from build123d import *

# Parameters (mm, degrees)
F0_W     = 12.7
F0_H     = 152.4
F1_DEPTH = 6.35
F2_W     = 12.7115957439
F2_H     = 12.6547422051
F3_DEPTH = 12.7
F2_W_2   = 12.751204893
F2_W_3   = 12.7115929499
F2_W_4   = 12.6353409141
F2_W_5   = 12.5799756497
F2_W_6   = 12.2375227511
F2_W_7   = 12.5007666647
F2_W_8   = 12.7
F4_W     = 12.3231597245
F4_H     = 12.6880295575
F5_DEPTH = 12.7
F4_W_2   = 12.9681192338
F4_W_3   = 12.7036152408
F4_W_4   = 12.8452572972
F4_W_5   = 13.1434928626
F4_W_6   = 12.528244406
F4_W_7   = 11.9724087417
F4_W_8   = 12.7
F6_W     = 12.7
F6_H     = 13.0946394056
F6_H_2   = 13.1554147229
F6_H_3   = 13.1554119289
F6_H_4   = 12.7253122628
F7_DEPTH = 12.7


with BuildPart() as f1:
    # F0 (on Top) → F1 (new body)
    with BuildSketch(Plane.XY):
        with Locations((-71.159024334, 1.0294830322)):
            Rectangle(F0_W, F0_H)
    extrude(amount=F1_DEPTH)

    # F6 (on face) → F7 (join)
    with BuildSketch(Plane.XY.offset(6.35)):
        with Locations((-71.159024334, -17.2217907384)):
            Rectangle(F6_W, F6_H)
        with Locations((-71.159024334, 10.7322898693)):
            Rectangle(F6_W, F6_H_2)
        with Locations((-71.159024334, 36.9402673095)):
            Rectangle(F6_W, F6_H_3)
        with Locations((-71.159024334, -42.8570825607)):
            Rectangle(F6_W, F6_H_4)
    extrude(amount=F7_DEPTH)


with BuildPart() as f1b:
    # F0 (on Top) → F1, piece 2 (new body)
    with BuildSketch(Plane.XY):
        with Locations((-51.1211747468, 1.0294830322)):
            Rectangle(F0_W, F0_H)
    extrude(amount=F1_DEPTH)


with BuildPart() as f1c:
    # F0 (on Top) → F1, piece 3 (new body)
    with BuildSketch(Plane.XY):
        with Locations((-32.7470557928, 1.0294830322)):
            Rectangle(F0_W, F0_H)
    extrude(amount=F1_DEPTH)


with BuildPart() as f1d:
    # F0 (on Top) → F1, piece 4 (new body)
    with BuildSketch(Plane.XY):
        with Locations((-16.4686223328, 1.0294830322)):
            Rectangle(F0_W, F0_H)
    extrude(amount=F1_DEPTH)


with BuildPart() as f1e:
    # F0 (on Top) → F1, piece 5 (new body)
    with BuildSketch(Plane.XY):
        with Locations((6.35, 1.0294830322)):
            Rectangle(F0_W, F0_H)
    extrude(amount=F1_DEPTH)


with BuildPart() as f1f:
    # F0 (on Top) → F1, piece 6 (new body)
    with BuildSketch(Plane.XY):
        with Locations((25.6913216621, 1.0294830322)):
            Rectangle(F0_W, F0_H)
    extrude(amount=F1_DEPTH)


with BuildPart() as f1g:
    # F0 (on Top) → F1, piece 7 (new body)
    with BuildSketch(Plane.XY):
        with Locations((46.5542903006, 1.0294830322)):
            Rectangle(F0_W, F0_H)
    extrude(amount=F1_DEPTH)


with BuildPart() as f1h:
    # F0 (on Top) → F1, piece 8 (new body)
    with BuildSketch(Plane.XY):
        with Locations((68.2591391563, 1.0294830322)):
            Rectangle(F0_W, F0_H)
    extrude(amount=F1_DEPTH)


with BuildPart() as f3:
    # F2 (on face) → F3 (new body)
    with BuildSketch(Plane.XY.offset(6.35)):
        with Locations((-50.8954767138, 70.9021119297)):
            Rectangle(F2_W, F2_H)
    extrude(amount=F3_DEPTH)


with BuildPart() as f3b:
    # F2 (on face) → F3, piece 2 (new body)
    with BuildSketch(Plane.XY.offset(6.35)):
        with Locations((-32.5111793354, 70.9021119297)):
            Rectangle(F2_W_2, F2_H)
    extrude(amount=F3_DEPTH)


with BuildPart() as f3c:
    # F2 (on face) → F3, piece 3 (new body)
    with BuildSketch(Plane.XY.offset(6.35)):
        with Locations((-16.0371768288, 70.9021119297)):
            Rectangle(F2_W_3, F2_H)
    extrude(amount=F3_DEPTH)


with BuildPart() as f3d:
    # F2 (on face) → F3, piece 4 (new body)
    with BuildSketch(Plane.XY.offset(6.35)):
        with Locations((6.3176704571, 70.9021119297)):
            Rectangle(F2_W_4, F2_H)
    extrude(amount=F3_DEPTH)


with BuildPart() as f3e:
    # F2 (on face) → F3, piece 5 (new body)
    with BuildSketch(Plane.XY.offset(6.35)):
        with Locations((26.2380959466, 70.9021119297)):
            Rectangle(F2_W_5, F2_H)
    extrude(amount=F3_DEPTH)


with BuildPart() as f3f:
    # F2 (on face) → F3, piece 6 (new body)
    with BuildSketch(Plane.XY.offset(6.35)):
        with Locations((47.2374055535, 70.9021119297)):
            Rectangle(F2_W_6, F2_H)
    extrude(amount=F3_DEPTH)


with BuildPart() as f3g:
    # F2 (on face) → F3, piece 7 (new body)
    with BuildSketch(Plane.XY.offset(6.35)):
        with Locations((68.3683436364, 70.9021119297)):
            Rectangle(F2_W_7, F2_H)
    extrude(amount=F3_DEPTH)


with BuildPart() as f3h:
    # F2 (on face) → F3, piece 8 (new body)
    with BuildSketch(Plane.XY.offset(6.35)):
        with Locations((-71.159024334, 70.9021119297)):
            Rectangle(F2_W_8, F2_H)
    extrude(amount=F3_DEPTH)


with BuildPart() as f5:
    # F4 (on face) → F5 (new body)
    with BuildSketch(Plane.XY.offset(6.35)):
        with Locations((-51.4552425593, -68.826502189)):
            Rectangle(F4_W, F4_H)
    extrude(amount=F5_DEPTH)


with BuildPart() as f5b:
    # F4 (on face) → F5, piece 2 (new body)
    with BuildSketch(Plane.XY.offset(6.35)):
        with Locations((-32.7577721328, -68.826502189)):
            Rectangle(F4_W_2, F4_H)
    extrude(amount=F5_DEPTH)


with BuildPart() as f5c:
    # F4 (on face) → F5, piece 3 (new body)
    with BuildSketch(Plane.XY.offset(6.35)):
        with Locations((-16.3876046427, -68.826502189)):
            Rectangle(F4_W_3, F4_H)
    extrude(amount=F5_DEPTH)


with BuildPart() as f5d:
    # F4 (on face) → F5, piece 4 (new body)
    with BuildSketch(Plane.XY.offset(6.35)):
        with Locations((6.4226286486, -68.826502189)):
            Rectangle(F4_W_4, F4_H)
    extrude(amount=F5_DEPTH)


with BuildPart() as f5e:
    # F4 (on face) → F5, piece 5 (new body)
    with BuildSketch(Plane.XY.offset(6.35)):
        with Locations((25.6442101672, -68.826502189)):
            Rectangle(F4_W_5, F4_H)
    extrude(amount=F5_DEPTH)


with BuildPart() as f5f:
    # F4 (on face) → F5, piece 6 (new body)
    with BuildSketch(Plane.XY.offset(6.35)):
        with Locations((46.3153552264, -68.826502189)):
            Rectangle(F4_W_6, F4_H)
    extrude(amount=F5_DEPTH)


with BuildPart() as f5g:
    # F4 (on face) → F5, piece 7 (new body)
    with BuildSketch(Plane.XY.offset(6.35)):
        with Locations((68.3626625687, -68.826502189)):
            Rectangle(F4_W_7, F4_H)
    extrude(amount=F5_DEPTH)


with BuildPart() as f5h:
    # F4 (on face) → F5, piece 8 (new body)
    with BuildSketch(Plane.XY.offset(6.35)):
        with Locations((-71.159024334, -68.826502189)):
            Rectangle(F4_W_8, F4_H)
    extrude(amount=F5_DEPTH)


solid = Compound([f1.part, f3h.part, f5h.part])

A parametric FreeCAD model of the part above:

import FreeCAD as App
import Part
import Sketcher
Q = App.Units.Quantity


def add_polygon(sketch, points):
    """Adds a closed chain of lines whose ends are joined by coincident constraints."""
    first, n = sketch.GeometryCount, len(points)
    for a, b in zip(points, points[1:] + points[:1]):
        sketch.addGeometry(Part.LineSegment(App.Vector(*a, 0), App.Vector(*b, 0)), False)
    for i in range(n):
        sketch.addConstraint(Sketcher.Constraint("Coincident", first + i, 2, first + (i + 1) % n, 1))

doc = App.newDocument("Part")
body = doc.addObject("PartDesign::Body", "Body")

# Sketch on XY plane
sketch1 = doc.addObject("Sketcher::SketchObject", "Sketch")
body.addObject(sketch1)
sketch1.AttachmentSupport = (doc.XY_Plane, [""])
sketch1.MapMode = "FlatFace"
add_polygon(sketch1, [(-77.509024, 77.229483), (-77.509024, -75.170517), (-64.809024, -75.170517), (-64.809024, 77.229483)])  # lines 0-3
sketch1.addConstraint([
    Sketcher.Constraint("Vertical", 0),
    Sketcher.Constraint("Horizontal", 1),
    Sketcher.Constraint("Vertical", 2),
    Sketcher.Constraint("Horizontal", 3),
    Sketcher.Constraint("DistanceY", 0, 2, 0, 1, Q("6 in")),
    Sketcher.Constraint("DistanceX", 1, 1, 1, 2, Q("0.5 in")),
    Sketcher.Constraint("DistanceX", 0, 2, -1, 1, Q("77.509024 mm")),
    Sketcher.Constraint("DistanceY", 0, 2, -1, 1, Q("75.170517 mm")),
])
pad1 = doc.addObject("PartDesign::Pad", "Pad")
body.addObject(pad1)
pad1.Profile = sketch1
pad1.Length = Q("0.25 in")

# Sketch on XY plane
sketch2 = doc.addObject("Sketcher::SketchObject", "Sketch001")
body.addObject(sketch2)
sketch2.AttachmentSupport = (doc.XY_Plane, [""])
sketch2.MapMode = "FlatFace"
sketch2.AttachmentOffset = App.Placement(App.Vector(0, 0, 0.25 * 25.4), App.Rotation())
add_polygon(sketch2, [(-77.509024, -10.674471), (-77.509024, -23.76911), (-64.809024, -23.76911), (-64.809024, -10.674471)])  # lines 0-3
add_polygon(sketch2, [(-77.509024, 17.309997), (-77.509024, 4.154583), (-64.809024, 4.154583), (-64.809024, 17.309997)])  # lines 4-7
add_polygon(sketch2, [(-77.509024, 43.517973), (-77.509024, 30.362561), (-64.809024, 30.362561), (-64.809024, 43.517973)])  # lines 8-11
add_polygon(sketch2, [(-77.509024, -36.494426), (-77.509024, -49.219739), (-64.809024, -49.219739), (-64.809024, -36.494426)])  # lines 12-15
sketch2.addConstraint([
    Sketcher.Constraint("Vertical", 0),
    Sketcher.Constraint("Horizontal", 1),
    Sketcher.Constraint("Vertical", 2),
    Sketcher.Constraint("Horizontal", 3),
    Sketcher.Constraint("Vertical", 4),
    Sketcher.Constraint("Horizontal", 5),
    Sketcher.Constraint("Vertical", 6),
    Sketcher.Constraint("Horizontal", 7),
    Sketcher.Constraint("Vertical", 8),
    Sketcher.Constraint("Horizontal", 9),
    Sketcher.Constraint("Vertical", 10),
    Sketcher.Constraint("Horizontal", 11),
    Sketcher.Constraint("Vertical", 12),
    Sketcher.Constraint("Horizontal", 13),
    Sketcher.Constraint("Vertical", 14),
    Sketcher.Constraint("Horizontal", 15),
    Sketcher.Constraint("Vertical", 3, 2, 4, 2),
    Sketcher.Constraint("Vertical", 2, 2, 5, 2),
    Sketcher.Constraint("Vertical", 7, 2, 8, 2),
    Sketcher.Constraint("Vertical", 6, 2, 9, 2),
    Sketcher.Constraint("Vertical", 11, 2, 12, 2),
    Sketcher.Constraint("Vertical", 10, 2, 13, 2),
    Sketcher.Constraint("DistanceX", 1, 1, 1, 2, Q("0.5 in")),
    Sketcher.Constraint("DistanceY", 0, 2, 0, 1, Q("13.094639 mm")),
    Sketcher.Constraint("DistanceY", 8, 2, 8, 1, Q("13.155412 mm")),
    Sketcher.Constraint("DistanceY", 4, 2, 4, 1, Q("13.155415 mm")),
    Sketcher.Constraint("DistanceY", 12, 2, 12, 1, Q("12.725312 mm")),
    Sketcher.Constraint("DistanceY", 0, 2, -1, 1, Q("23.76911 mm")),
    Sketcher.Constraint("DistanceY", -1, 1, 8, 2, Q("30.362561 mm")),
    Sketcher.Constraint("DistanceY", 12, 2, -1, 1, Q("49.219739 mm")),
    Sketcher.Constraint("DistanceY", 2, 2, 6, 2, Q("27.984468 mm")),
    Sketcher.Constraint("DistanceX", 0, 2, -1, 1, Q("77.509024 mm")),
])
pad2 = doc.addObject("PartDesign::Pad", "Pad001")
body.addObject(pad2)
pad2.Profile = sketch2
pad2.Length = Q("0.5 in")
body2 = doc.addObject("PartDesign::Body", "Body001")

# Sketch on XY plane
sketch3 = doc.addObject("Sketcher::SketchObject", "Sketch002")
body2.addObject(sketch3)
sketch3.AttachmentSupport = (doc.getObject("XY_Plane001"), [""])
sketch3.MapMode = "FlatFace"
add_polygon(sketch3, [(-57.471175, 77.229483), (-57.471175, -75.170517), (-44.771175, -75.170517), (-44.771175, 77.229483)])  # lines 0-3
sketch3.addConstraint([
    Sketcher.Constraint("Vertical", 0),
    Sketcher.Constraint("Horizontal", 1),
    Sketcher.Constraint("Vertical", 2),
    Sketcher.Constraint("Horizontal", 3),
    Sketcher.Constraint("DistanceY", 0, 2, 0, 1, Q("6 in")),
    Sketcher.Constraint("DistanceX", 1, 1, 1, 2, Q("0.5 in")),
    Sketcher.Constraint("DistanceX", 0, 2, -1, 1, Q("57.471175 mm")),
    Sketcher.Constraint("DistanceY", 0, 2, -1, 1, Q("75.170517 mm")),
])
pad3 = doc.addObject("PartDesign::Pad", "Pad002")
body2.addObject(pad3)
pad3.Profile = sketch3
pad3.Length = Q("0.25 in")
body3 = doc.addObject("PartDesign::Body", "Body002")

# Sketch on XY plane
sketch4 = doc.addObject("Sketcher::SketchObject", "Sketch003")
body3.addObject(sketch4)
sketch4.AttachmentSupport = (doc.getObject("XY_Plane002"), [""])
sketch4.MapMode = "FlatFace"
add_polygon(sketch4, [(-39.097056, 77.229483), (-39.097056, -75.170517), (-26.397056, -75.170517), (-26.397056, 77.229483)])  # lines 0-3
sketch4.addConstraint([
    Sketcher.Constraint("Vertical", 0),
    Sketcher.Constraint("Horizontal", 1),
    Sketcher.Constraint("Vertical", 2),
    Sketcher.Constraint("Horizontal", 3),
    Sketcher.Constraint("DistanceY", 0, 2, 0, 1, Q("6 in")),
    Sketcher.Constraint("DistanceX", 1, 1, 1, 2, Q("0.5 in")),
    Sketcher.Constraint("DistanceX", 0, 2, -1, 1, Q("39.097056 mm")),
    Sketcher.Constraint("DistanceY", 0, 2, -1, 1, Q("75.170517 mm")),
])
pad4 = doc.addObject("PartDesign::Pad", "Pad003")
body3.addObject(pad4)
pad4.Profile = sketch4
pad4.Length = Q("0.25 in")
body4 = doc.addObject("PartDesign::Body", "Body003")

# Sketch on XY plane
sketch5 = doc.addObject("Sketcher::SketchObject", "Sketch004")
body4.addObject(sketch5)
sketch5.AttachmentSupport = (doc.getObject("XY_Plane003"), [""])
sketch5.MapMode = "FlatFace"
add_polygon(sketch5, [(-22.818622, 77.229483), (-22.818622, -75.170517), (-10.118622, -75.170517), (-10.118622, 77.229483)])  # lines 0-3
sketch5.addConstraint([
    Sketcher.Constraint("Vertical", 0),
    Sketcher.Constraint("Horizontal", 1),
    Sketcher.Constraint("Vertical", 2),
    Sketcher.Constraint("Horizontal", 3),
    Sketcher.Constraint("DistanceY", 0, 2, 0, 1, Q("6 in")),
    Sketcher.Constraint("DistanceX", 1, 1, 1, 2, Q("0.5 in")),
    Sketcher.Constraint("DistanceX", 0, 2, -1, 1, Q("22.818622 mm")),
    Sketcher.Constraint("DistanceY", 0, 2, -1, 1, Q("75.170517 mm")),
])
pad5 = doc.addObject("PartDesign::Pad", "Pad004")
body4.addObject(pad5)
pad5.Profile = sketch5
pad5.Length = Q("0.25 in")
body5 = doc.addObject("PartDesign::Body", "Body004")

# Sketch on XY plane
sketch6 = doc.addObject("Sketcher::SketchObject", "Sketch005")
body5.addObject(sketch6)
sketch6.AttachmentSupport = (doc.getObject("XY_Plane004"), [""])
sketch6.MapMode = "FlatFace"
add_polygon(sketch6, [(0, 77.229483), (0, -75.170517), (12.7, -75.170517), (12.7, 77.229483)])  # lines 0-3
sketch6.addConstraint([
    Sketcher.Constraint("Vertical", 0),
    Sketcher.Constraint("Horizontal", 1),
    Sketcher.Constraint("Vertical", 2),
    Sketcher.Constraint("Horizontal", 3),
    Sketcher.Constraint("PointOnObject", 0, 2, -2),
    Sketcher.Constraint("DistanceY", 0, 2, 0, 1, Q("6 in")),
    Sketcher.Constraint("DistanceX", 1, 1, 1, 2, Q("0.5 in")),
    Sketcher.Constraint("DistanceY", 0, 2, -1, 1, Q("75.170517 mm")),
])
pad6 = doc.addObject("PartDesign::Pad", "Pad005")
body5.addObject(pad6)
pad6.Profile = sketch6
pad6.Length = Q("0.25 in")
body6 = doc.addObject("PartDesign::Body", "Body005")

# Sketch on XY plane
sketch7 = doc.addObject("Sketcher::SketchObject", "Sketch006")
body6.addObject(sketch7)
sketch7.AttachmentSupport = (doc.getObject("XY_Plane005"), [""])
sketch7.MapMode = "FlatFace"
add_polygon(sketch7, [(19.341322, 77.229483), (19.341322, -75.170517), (32.041322, -75.170517), (32.041322, 77.229483)])  # lines 0-3
sketch7.addConstraint([
    Sketcher.Constraint("Vertical", 0),
    Sketcher.Constraint("Horizontal", 1),
    Sketcher.Constraint("Vertical", 2),
    Sketcher.Constraint("Horizontal", 3),
    Sketcher.Constraint("DistanceY", 0, 2, 0, 1, Q("6 in")),
    Sketcher.Constraint("DistanceX", 1, 1, 1, 2, Q("0.5 in")),
    Sketcher.Constraint("DistanceX", -1, 1, 0, 2, Q("19.341322 mm")),
    Sketcher.Constraint("DistanceY", 0, 2, -1, 1, Q("75.170517 mm")),
])
pad7 = doc.addObject("PartDesign::Pad", "Pad006")
body6.addObject(pad7)
pad7.Profile = sketch7
pad7.Length = Q("0.25 in")
body7 = doc.addObject("PartDesign::Body", "Body006")

# Sketch on XY plane
sketch8 = doc.addObject("Sketcher::SketchObject", "Sketch007")
body7.addObject(sketch8)
sketch8.AttachmentSupport = (doc.getObject("XY_Plane006"), [""])
sketch8.MapMode = "FlatFace"
add_polygon(sketch8, [(40.20429, 77.229483), (40.20429, -75.170517), (52.90429, -75.170517), (52.90429, 77.229483)])  # lines 0-3
sketch8.addConstraint([
    Sketcher.Constraint("Vertical", 0),
    Sketcher.Constraint("Horizontal", 1),
    Sketcher.Constraint("Vertical", 2),
    Sketcher.Constraint("Horizontal", 3),
    Sketcher.Constraint("DistanceY", 0, 2, 0, 1, Q("6 in")),
    Sketcher.Constraint("DistanceX", 1, 1, 1, 2, Q("0.5 in")),
    Sketcher.Constraint("DistanceX", -1, 1, 0, 2, Q("40.20429 mm")),
    Sketcher.Constraint("DistanceY", 0, 2, -1, 1, Q("75.170517 mm")),
])
pad8 = doc.addObject("PartDesign::Pad", "Pad007")
body7.addObject(pad8)
pad8.Profile = sketch8
pad8.Length = Q("0.25 in")
body8 = doc.addObject("PartDesign::Body", "Body007")

# Sketch on XY plane
sketch9 = doc.addObject("Sketcher::SketchObject", "Sketch008")
body8.addObject(sketch9)
sketch9.AttachmentSupport = (doc.getObject("XY_Plane007"), [""])
sketch9.MapMode = "FlatFace"
add_polygon(sketch9, [(61.909139, 77.229483), (61.909139, -75.170517), (74.609139, -75.170517), (74.609139, 77.229483)])  # lines 0-3
sketch9.addConstraint([
    Sketcher.Constraint("Vertical", 0),
    Sketcher.Constraint("Horizontal", 1),
    Sketcher.Constraint("Vertical", 2),
    Sketcher.Constraint("Horizontal", 3),
    Sketcher.Constraint("DistanceY", 0, 2, 0, 1, Q("6 in")),
    Sketcher.Constraint("DistanceX", 1, 1, 1, 2, Q("0.5 in")),
    Sketcher.Constraint("DistanceX", -1, 1, 0, 2, Q("61.909139 mm")),
    Sketcher.Constraint("DistanceY", 0, 2, -1, 1, Q("75.170517 mm")),
])
pad9 = doc.addObject("PartDesign::Pad", "Pad008")
body8.addObject(pad9)
pad9.Profile = sketch9
pad9.Length = Q("0.25 in")
body9 = doc.addObject("PartDesign::Body", "Body008")

# Sketch on XY plane
sketch10 = doc.addObject("Sketcher::SketchObject", "Sketch009")
body9.addObject(sketch10)
sketch10.AttachmentSupport = (doc.getObject("XY_Plane008"), [""])
sketch10.MapMode = "FlatFace"
sketch10.AttachmentOffset = App.Placement(App.Vector(0, 0, 0.25 * 25.4), App.Rotation())
add_polygon(sketch10, [(-57.251275, 77.229483), (-57.251275, 64.574741), (-44.539679, 64.574741), (-44.539679, 77.229483)])  # lines 0-3
sketch10.addConstraint([
    Sketcher.Constraint("Vertical", 0),
    Sketcher.Constraint("Horizontal", 1),
    Sketcher.Constraint("Vertical", 2),
    Sketcher.Constraint("Horizontal", 3),
    Sketcher.Constraint("DistanceX", 1, 1, 1, 2, Q("12.711596 mm")),
    Sketcher.Constraint("DistanceY", 0, 2, 0, 1, Q("12.654742 mm")),
    Sketcher.Constraint("DistanceY", -1, 1, 0, 2, Q("64.574741 mm")),
    Sketcher.Constraint("DistanceX", 1, 2, -1, 1, Q("44.539679 mm")),
])
pad10 = doc.addObject("PartDesign::Pad", "Pad009")
body9.addObject(pad10)
pad10.Profile = sketch10
pad10.Length = Q("0.5 in")
body10 = doc.addObject("PartDesign::Body", "Body009")

# Sketch on XY plane
sketch11 = doc.addObject("Sketcher::SketchObject", "Sketch010")
body10.addObject(sketch11)
sketch11.AttachmentSupport = (doc.getObject("XY_Plane009"), [""])
sketch11.MapMode = "FlatFace"
sketch11.AttachmentOffset = App.Placement(App.Vector(0, 0, 0.25 * 25.4), App.Rotation())
add_polygon(sketch11, [(-38.886782, 77.229483), (-38.886782, 64.574741), (-26.135577, 64.574741), (-26.135577, 77.229483)])  # lines 0-3
sketch11.addConstraint([
    Sketcher.Constraint("Vertical", 0),
    Sketcher.Constraint("Horizontal", 1),
    Sketcher.Constraint("Vertical", 2),
    Sketcher.Constraint("Horizontal", 3),
    Sketcher.Constraint("DistanceX", 1, 1, 1, 2, Q("12.751205 mm")),
    Sketcher.Constraint("DistanceY", 0, 2, 0, 1, Q("12.654742 mm")),
    Sketcher.Constraint("DistanceX", 0, 2, -1, 1, Q("38.886782 mm")),
    Sketcher.Constraint("DistanceY", -1, 1, 0, 2, Q("64.574741 mm")),
])
pad11 = doc.addObject("PartDesign::Pad", "Pad010")
body10.addObject(pad11)
pad11.Profile = sketch11
pad11.Length = Q("0.5 in")
body11 = doc.addObject("PartDesign::Body", "Body010")

# Sketch on XY plane
sketch12 = doc.addObject("Sketcher::SketchObject", "Sketch011")
body11.addObject(sketch12)
sketch12.AttachmentSupport = (doc.getObject("XY_Plane010"), [""])
sketch12.MapMode = "FlatFace"
sketch12.AttachmentOffset = App.Placement(App.Vector(0, 0, 0.25 * 25.4), App.Rotation())
add_polygon(sketch12, [(-22.392973, 77.229483), (-22.392973, 64.574741), (-9.68138, 64.574741), (-9.68138, 77.229483)])  # lines 0-3
sketch12.addConstraint([
    Sketcher.Constraint("Vertical", 0),
    Sketcher.Constraint("Horizontal", 1),
    Sketcher.Constraint("Vertical", 2),
    Sketcher.Constraint("Horizontal", 3),
    Sketcher.Constraint("DistanceX", 1, 1, 1, 2, Q("12.711593 mm")),
    Sketcher.Constraint("DistanceY", 0, 2, 0, 1, Q("12.654742 mm")),
    Sketcher.Constraint("DistanceY", -1, 1, 0, 2, Q("64.574741 mm")),
    Sketcher.Constraint("DistanceX", 1, 2, -1, 1, Q("9.68138 mm")),
])
pad12 = doc.addObject("PartDesign::Pad", "Pad011")
body11.addObject(pad12)
pad12.Profile = sketch12
pad12.Length = Q("0.5 in")
body12 = doc.addObject("PartDesign::Body", "Body011")

# Sketch on XY plane
sketch13 = doc.addObject("Sketcher::SketchObject", "Sketch012")
body12.addObject(sketch13)
sketch13.AttachmentSupport = (doc.getObject("XY_Plane011"), [""])
sketch13.MapMode = "FlatFace"
sketch13.AttachmentOffset = App.Placement(App.Vector(0, 0, 0.25 * 25.4), App.Rotation())
add_polygon(sketch13, [(0, 77.229483), (0, 64.574741), (12.635341, 64.574741), (12.635341, 77.229483)])  # lines 0-3
sketch13.addConstraint([
    Sketcher.Constraint("Vertical", 0),
    Sketcher.Constraint("Horizontal", 1),
    Sketcher.Constraint("Vertical", 2),
    Sketcher.Constraint("Horizontal", 3),
    Sketcher.Constraint("PointOnObject", 0, 2, -2),
    Sketcher.Constraint("DistanceX", 1, 1, 1, 2, Q("12.635341 mm")),
    Sketcher.Constraint("DistanceY", 0, 2, 0, 1, Q("12.654742 mm")),
    Sketcher.Constraint("DistanceY", -1, 1, 0, 2, Q("64.574741 mm")),
])
pad13 = doc.addObject("PartDesign::Pad", "Pad012")
body12.addObject(pad13)
pad13.Profile = sketch13
pad13.Length = Q("0.5 in")
body13 = doc.addObject("PartDesign::Body", "Body012")

# Sketch on XY plane
sketch14 = doc.addObject("Sketcher::SketchObject", "Sketch013")
body13.addObject(sketch14)
sketch14.AttachmentSupport = (doc.getObject("XY_Plane012"), [""])
sketch14.MapMode = "FlatFace"
sketch14.AttachmentOffset = App.Placement(App.Vector(0, 0, 0.25 * 25.4), App.Rotation())
add_polygon(sketch14, [(19.948108, 77.229483), (19.948108, 64.574741), (32.528084, 64.574741), (32.528084, 77.229483)])  # lines 0-3
sketch14.addConstraint([
    Sketcher.Constraint("Vertical", 0),
    Sketcher.Constraint("Horizontal", 1),
    Sketcher.Constraint("Vertical", 2),
    Sketcher.Constraint("Horizontal", 3),
    Sketcher.Constraint("DistanceX", 1, 1, 1, 2, Q("12.579976 mm")),
    Sketcher.Constraint("DistanceY", 0, 2, 0, 1, Q("12.654742 mm")),
    Sketcher.Constraint("DistanceX", -1, 1, 0, 2, Q("19.948108 mm")),
    Sketcher.Constraint("DistanceY", -1, 1, 0, 2, Q("64.574741 mm")),
])
pad14 = doc.addObject("PartDesign::Pad", "Pad013")
body13.addObject(pad14)
pad14.Profile = sketch14
pad14.Length = Q("0.5 in")
body14 = doc.addObject("PartDesign::Body", "Body013")

# Sketch on XY plane
sketch15 = doc.addObject("Sketcher::SketchObject", "Sketch014")
body14.addObject(sketch15)
sketch15.AttachmentSupport = (doc.getObject("XY_Plane013"), [""])
sketch15.MapMode = "FlatFace"
sketch15.AttachmentOffset = App.Placement(App.Vector(0, 0, 0.25 * 25.4), App.Rotation())
add_polygon(sketch15, [(41.118644, 77.229483), (41.118644, 64.574741), (53.356167, 64.574741), (53.356167, 77.229483)])  # lines 0-3
sketch15.addConstraint([
    Sketcher.Constraint("Vertical", 0),
    Sketcher.Constraint("Horizontal", 1),
    Sketcher.Constraint("Vertical", 2),
    Sketcher.Constraint("Horizontal", 3),
    Sketcher.Constraint("DistanceX", 1, 1, 1, 2, Q("12.237523 mm")),
    Sketcher.Constraint("DistanceY", 0, 2, 0, 1, Q("12.654742 mm")),
    Sketcher.Constraint("DistanceY", -1, 1, 0, 2, Q("64.574741 mm")),
    Sketcher.Constraint("DistanceX", -1, 1, 0, 2, Q("41.118644 mm")),
])
pad15 = doc.addObject("PartDesign::Pad", "Pad014")
body14.addObject(pad15)
pad15.Profile = sketch15
pad15.Length = Q("0.5 in")
body15 = doc.addObject("PartDesign::Body", "Body014")

# Sketch on XY plane
sketch16 = doc.addObject("Sketcher::SketchObject", "Sketch015")
body15.addObject(sketch16)
sketch16.AttachmentSupport = (doc.getObject("XY_Plane014"), [""])
sketch16.MapMode = "FlatFace"
sketch16.AttachmentOffset = App.Placement(App.Vector(0, 0, 0.25 * 25.4), App.Rotation())
add_polygon(sketch16, [(62.11796, 77.229483), (62.11796, 64.574741), (74.618727, 64.574741), (74.618727, 77.229483)])  # lines 0-3
sketch16.addConstraint([
    Sketcher.Constraint("Vertical", 0),
    Sketcher.Constraint("Horizontal", 1),
    Sketcher.Constraint("Vertical", 2),
    Sketcher.Constraint("Horizontal", 3),
    Sketcher.Constraint("DistanceX", 1, 1, 1, 2, Q("12.500767 mm")),
    Sketcher.Constraint("DistanceY", 0, 2, 0, 1, Q("12.654742 mm")),
    Sketcher.Constraint("DistanceX", -1, 1, 0, 2, Q("62.11796 mm")),
    Sketcher.Constraint("DistanceY", -1, 1, 0, 2, Q("64.574741 mm")),
])
pad16 = doc.addObject("PartDesign::Pad", "Pad015")
body15.addObject(pad16)
pad16.Profile = sketch16
pad16.Length = Q("0.5 in")
body16 = doc.addObject("PartDesign::Body", "Body015")

# Sketch on XY plane
sketch17 = doc.addObject("Sketcher::SketchObject", "Sketch016")
body16.addObject(sketch17)
sketch17.AttachmentSupport = (doc.getObject("XY_Plane015"), [""])
sketch17.MapMode = "FlatFace"
sketch17.AttachmentOffset = App.Placement(App.Vector(0, 0, 0.25 * 25.4), App.Rotation())
add_polygon(sketch17, [(-77.509024, 77.229483), (-77.509024, 64.574741), (-64.809024, 64.574741), (-64.809024, 77.229483)])  # lines 0-3
sketch17.addConstraint([
    Sketcher.Constraint("Vertical", 0),
    Sketcher.Constraint("Horizontal", 1),
    Sketcher.Constraint("Vertical", 2),
    Sketcher.Constraint("Horizontal", 3),
    Sketcher.Constraint("DistanceX", 1, 1, 1, 2, Q("0.5 in")),
    Sketcher.Constraint("DistanceY", 0, 2, 0, 1, Q("12.654742 mm")),
    Sketcher.Constraint("DistanceY", -1, 1, 0, 2, Q("64.574741 mm")),
    Sketcher.Constraint("DistanceX", 0, 2, -1, 1, Q("77.509024 mm")),
])
pad17 = doc.addObject("PartDesign::Pad", "Pad016")
body16.addObject(pad17)
pad17.Profile = sketch17
pad17.Length = Q("0.5 in")
body17 = doc.addObject("PartDesign::Body", "Body016")

# Sketch on XY plane
sketch18 = doc.addObject("Sketcher::SketchObject", "Sketch017")
body17.addObject(sketch18)
sketch18.AttachmentSupport = (doc.getObject("XY_Plane016"), [""])
sketch18.MapMode = "FlatFace"
sketch18.AttachmentOffset = App.Placement(App.Vector(0, 0, 0.25 * 25.4), App.Rotation())
add_polygon(sketch18, [(-57.616822, -62.482487), (-57.616822, -75.170517), (-45.293663, -75.170517), (-45.293663, -62.482487)])  # lines 0-3
sketch18.addConstraint([
    Sketcher.Constraint("Vertical", 0),
    Sketcher.Constraint("Horizontal", 1),
    Sketcher.Constraint("Vertical", 2),
    Sketcher.Constraint("Horizontal", 3),
    Sketcher.Constraint("DistanceX", 1, 1, 1, 2, Q("12.32316 mm")),
    Sketcher.Constraint("DistanceY", 0, 2, 0, 1, Q("12.68803 mm")),
    Sketcher.Constraint("DistanceX", 0, 2, -1, 1, Q("57.616822 mm")),
    Sketcher.Constraint("DistanceY", 0, 2, -1, 1, Q("75.170517 mm")),
])
pad18 = doc.addObject("PartDesign::Pad", "Pad017")
body17.addObject(pad18)
pad18.Profile = sketch18
pad18.Length = Q("0.5 in")
body18 = doc.addObject("PartDesign::Body", "Body017")

# Sketch on XY plane
sketch19 = doc.addObject("Sketcher::SketchObject", "Sketch018")
body18.addObject(sketch19)
sketch19.AttachmentSupport = (doc.getObject("XY_Plane017"), [""])
sketch19.MapMode = "FlatFace"
sketch19.AttachmentOffset = App.Placement(App.Vector(0, 0, 0.25 * 25.4), App.Rotation())
add_polygon(sketch19, [(-39.241832, -62.482487), (-39.241832, -75.170517), (-26.273713, -75.170517), (-26.273713, -62.482487)])  # lines 0-3
sketch19.addConstraint([
    Sketcher.Constraint("Vertical", 0),
    Sketcher.Constraint("Horizontal", 1),
    Sketcher.Constraint("Vertical", 2),
    Sketcher.Constraint("Horizontal", 3),
    Sketcher.Constraint("DistanceX", 1, 1, 1, 2, Q("12.968119 mm")),
    Sketcher.Constraint("DistanceY", 0, 2, 0, 1, Q("12.68803 mm")),
    Sketcher.Constraint("DistanceX", 0, 2, -1, 1, Q("39.241832 mm")),
    Sketcher.Constraint("DistanceY", 0, 2, -1, 1, Q("75.170517 mm")),
])
pad19 = doc.addObject("PartDesign::Pad", "Pad018")
body18.addObject(pad19)
pad19.Profile = sketch19
pad19.Length = Q("0.5 in")
body19 = doc.addObject("PartDesign::Body", "Body018")

# Sketch on XY plane
sketch20 = doc.addObject("Sketcher::SketchObject", "Sketch019")
body19.addObject(sketch20)
sketch20.AttachmentSupport = (doc.getObject("XY_Plane018"), [""])
sketch20.MapMode = "FlatFace"
sketch20.AttachmentOffset = App.Placement(App.Vector(0, 0, 0.25 * 25.4), App.Rotation())
add_polygon(sketch20, [(-22.739412, -62.482487), (-22.739412, -75.170517), (-10.035797, -75.170517), (-10.035797, -62.482487)])  # lines 0-3
sketch20.addConstraint([
    Sketcher.Constraint("Vertical", 0),
    Sketcher.Constraint("Horizontal", 1),
    Sketcher.Constraint("Vertical", 2),
    Sketcher.Constraint("Horizontal", 3),
    Sketcher.Constraint("DistanceY", 0, 2, 0, 1, Q("12.68803 mm")),
    Sketcher.Constraint("DistanceX", 1, 1, 1, 2, Q("12.703615 mm")),
    Sketcher.Constraint("DistanceX", 0, 2, -1, 1, Q("22.739412 mm")),
    Sketcher.Constraint("DistanceY", 0, 2, -1, 1, Q("75.170517 mm")),
])
pad20 = doc.addObject("PartDesign::Pad", "Pad019")
body19.addObject(pad20)
pad20.Profile = sketch20
pad20.Length = Q("0.5 in")
body20 = doc.addObject("PartDesign::Body", "Body019")

# Sketch on XY plane
sketch21 = doc.addObject("Sketcher::SketchObject", "Sketch020")
body20.addObject(sketch21)
sketch21.AttachmentSupport = (doc.getObject("XY_Plane019"), [""])
sketch21.MapMode = "FlatFace"
sketch21.AttachmentOffset = App.Placement(App.Vector(0, 0, 0.25 * 25.4), App.Rotation())
add_polygon(sketch21, [(0, -62.482487), (0, -75.170517), (12.845257, -75.170517), (12.845257, -62.482487)])  # lines 0-3
sketch21.addConstraint([
    Sketcher.Constraint("Vertical", 0),
    Sketcher.Constraint("Horizontal", 1),
    Sketcher.Constraint("Vertical", 2),
    Sketcher.Constraint("Horizontal", 3),
    Sketcher.Constraint("PointOnObject", 0, 2, -2),
    Sketcher.Constraint("DistanceY", 0, 2, 0, 1, Q("12.68803 mm")),
    Sketcher.Constraint("DistanceX", 1, 1, 1, 2, Q("12.845257 mm")),
    Sketcher.Constraint("DistanceY", 0, 2, -1, 1, Q("75.170517 mm")),
])
pad21 = doc.addObject("PartDesign::Pad", "Pad020")
body20.addObject(pad21)
pad21.Profile = sketch21
pad21.Length = Q("0.5 in")
body21 = doc.addObject("PartDesign::Body", "Body020")

# Sketch on XY plane
sketch22 = doc.addObject("Sketcher::SketchObject", "Sketch021")
body21.addObject(sketch22)
sketch22.AttachmentSupport = (doc.getObject("XY_Plane020"), [""])
sketch22.MapMode = "FlatFace"
sketch22.AttachmentOffset = App.Placement(App.Vector(0, 0, 0.25 * 25.4), App.Rotation())
add_polygon(sketch22, [(19.072464, -62.482487), (19.072464, -75.170517), (32.215957, -75.170517), (32.215957, -62.482487)])  # lines 0-3
sketch22.addConstraint([
    Sketcher.Constraint("Vertical", 0),
    Sketcher.Constraint("Horizontal", 1),
    Sketcher.Constraint("Vertical", 2),
    Sketcher.Constraint("Horizontal", 3),
    Sketcher.Constraint("DistanceY", 0, 2, 0, 1, Q("12.68803 mm")),
    Sketcher.Constraint("DistanceX", 1, 1, 1, 2, Q("13.143493 mm")),
    Sketcher.Constraint("DistanceX", -1, 1, 0, 2, Q("19.072464 mm")),
    Sketcher.Constraint("DistanceY", 0, 2, -1, 1, Q("75.170517 mm")),
])
pad22 = doc.addObject("PartDesign::Pad", "Pad021")
body21.addObject(pad22)
pad22.Profile = sketch22
pad22.Length = Q("0.5 in")
body22 = doc.addObject("PartDesign::Body", "Body021")

# Sketch on XY plane
sketch23 = doc.addObject("Sketcher::SketchObject", "Sketch022")
body22.addObject(sketch23)
sketch23.AttachmentSupport = (doc.getObject("XY_Plane021"), [""])
sketch23.MapMode = "FlatFace"
sketch23.AttachmentOffset = App.Placement(App.Vector(0, 0, 0.25 * 25.4), App.Rotation())
add_polygon(sketch23, [(40.051233, -62.482487), (40.051233, -75.170517), (52.579477, -75.170517), (52.579477, -62.482487)])  # lines 0-3
sketch23.addConstraint([
    Sketcher.Constraint("Vertical", 0),
    Sketcher.Constraint("Horizontal", 1),
    Sketcher.Constraint("Vertical", 2),
    Sketcher.Constraint("Horizontal", 3),
    Sketcher.Constraint("DistanceY", 0, 2, 0, 1, Q("12.68803 mm")),
    Sketcher.Constraint("DistanceX", 1, 1, 1, 2, Q("12.528244 mm")),
    Sketcher.Constraint("DistanceX", -1, 1, 0, 2, Q("40.051233 mm")),
    Sketcher.Constraint("DistanceY", 0, 2, -1, 1, Q("75.170517 mm")),
])
pad23 = doc.addObject("PartDesign::Pad", "Pad022")
body22.addObject(pad23)
pad23.Profile = sketch23
pad23.Length = Q("0.5 in")
body23 = doc.addObject("PartDesign::Body", "Body022")

# Sketch on XY plane
sketch24 = doc.addObject("Sketcher::SketchObject", "Sketch023")
body23.addObject(sketch24)
sketch24.AttachmentSupport = (doc.getObject("XY_Plane022"), [""])
sketch24.MapMode = "FlatFace"
sketch24.AttachmentOffset = App.Placement(App.Vector(0, 0, 0.25 * 25.4), App.Rotation())
add_polygon(sketch24, [(62.376458, -62.482487), (62.376458, -75.170517), (74.348867, -75.170517), (74.348867, -62.482487)])  # lines 0-3
sketch24.addConstraint([
    Sketcher.Constraint("Vertical", 0),
    Sketcher.Constraint("Horizontal", 1),
    Sketcher.Constraint("Vertical", 2),
    Sketcher.Constraint("Horizontal", 3),
    Sketcher.Constraint("DistanceX", 1, 1, 1, 2, Q("11.972409 mm")),
    Sketcher.Constraint("DistanceY", 0, 2, 0, 1, Q("12.68803 mm")),
    Sketcher.Constraint("DistanceX", -1, 1, 0, 2, Q("62.376458 mm")),
    Sketcher.Constraint("DistanceY", 0, 2, -1, 1, Q("75.170517 mm")),
])
pad24 = doc.addObject("PartDesign::Pad", "Pad023")
body23.addObject(pad24)
pad24.Profile = sketch24
pad24.Length = Q("0.5 in")
body24 = doc.addObject("PartDesign::Body", "Body023")

# Sketch on XY plane
sketch25 = doc.addObject("Sketcher::SketchObject", "Sketch024")
body24.addObject(sketch25)
sketch25.AttachmentSupport = (doc.getObject("XY_Plane023"), [""])
sketch25.MapMode = "FlatFace"
sketch25.AttachmentOffset = App.Placement(App.Vector(0, 0, 0.25 * 25.4), App.Rotation())
add_polygon(sketch25, [(-77.509024, -62.482487), (-77.509024, -75.170517), (-64.809024, -75.170517), (-64.809024, -62.482487)])  # lines 0-3
sketch25.addConstraint([
    Sketcher.Constraint("Vertical", 0),
    Sketcher.Constraint("Horizontal", 1),
    Sketcher.Constraint("Vertical", 2),
    Sketcher.Constraint("Horizontal", 3),
    Sketcher.Constraint("DistanceX", 1, 1, 1, 2, Q("0.5 in")),
    Sketcher.Constraint("DistanceY", 0, 2, 0, 1, Q("12.68803 mm")),
    Sketcher.Constraint("DistanceX", 0, 2, -1, 1, Q("77.509024 mm")),
    Sketcher.Constraint("DistanceY", 0, 2, -1, 1, Q("75.170517 mm")),
])
pad25 = doc.addObject("PartDesign::Pad", "Pad024")
body24.addObject(pad25)
pad25.Profile = sketch25
pad25.Length = Q("0.5 in")

doc.recompute()
